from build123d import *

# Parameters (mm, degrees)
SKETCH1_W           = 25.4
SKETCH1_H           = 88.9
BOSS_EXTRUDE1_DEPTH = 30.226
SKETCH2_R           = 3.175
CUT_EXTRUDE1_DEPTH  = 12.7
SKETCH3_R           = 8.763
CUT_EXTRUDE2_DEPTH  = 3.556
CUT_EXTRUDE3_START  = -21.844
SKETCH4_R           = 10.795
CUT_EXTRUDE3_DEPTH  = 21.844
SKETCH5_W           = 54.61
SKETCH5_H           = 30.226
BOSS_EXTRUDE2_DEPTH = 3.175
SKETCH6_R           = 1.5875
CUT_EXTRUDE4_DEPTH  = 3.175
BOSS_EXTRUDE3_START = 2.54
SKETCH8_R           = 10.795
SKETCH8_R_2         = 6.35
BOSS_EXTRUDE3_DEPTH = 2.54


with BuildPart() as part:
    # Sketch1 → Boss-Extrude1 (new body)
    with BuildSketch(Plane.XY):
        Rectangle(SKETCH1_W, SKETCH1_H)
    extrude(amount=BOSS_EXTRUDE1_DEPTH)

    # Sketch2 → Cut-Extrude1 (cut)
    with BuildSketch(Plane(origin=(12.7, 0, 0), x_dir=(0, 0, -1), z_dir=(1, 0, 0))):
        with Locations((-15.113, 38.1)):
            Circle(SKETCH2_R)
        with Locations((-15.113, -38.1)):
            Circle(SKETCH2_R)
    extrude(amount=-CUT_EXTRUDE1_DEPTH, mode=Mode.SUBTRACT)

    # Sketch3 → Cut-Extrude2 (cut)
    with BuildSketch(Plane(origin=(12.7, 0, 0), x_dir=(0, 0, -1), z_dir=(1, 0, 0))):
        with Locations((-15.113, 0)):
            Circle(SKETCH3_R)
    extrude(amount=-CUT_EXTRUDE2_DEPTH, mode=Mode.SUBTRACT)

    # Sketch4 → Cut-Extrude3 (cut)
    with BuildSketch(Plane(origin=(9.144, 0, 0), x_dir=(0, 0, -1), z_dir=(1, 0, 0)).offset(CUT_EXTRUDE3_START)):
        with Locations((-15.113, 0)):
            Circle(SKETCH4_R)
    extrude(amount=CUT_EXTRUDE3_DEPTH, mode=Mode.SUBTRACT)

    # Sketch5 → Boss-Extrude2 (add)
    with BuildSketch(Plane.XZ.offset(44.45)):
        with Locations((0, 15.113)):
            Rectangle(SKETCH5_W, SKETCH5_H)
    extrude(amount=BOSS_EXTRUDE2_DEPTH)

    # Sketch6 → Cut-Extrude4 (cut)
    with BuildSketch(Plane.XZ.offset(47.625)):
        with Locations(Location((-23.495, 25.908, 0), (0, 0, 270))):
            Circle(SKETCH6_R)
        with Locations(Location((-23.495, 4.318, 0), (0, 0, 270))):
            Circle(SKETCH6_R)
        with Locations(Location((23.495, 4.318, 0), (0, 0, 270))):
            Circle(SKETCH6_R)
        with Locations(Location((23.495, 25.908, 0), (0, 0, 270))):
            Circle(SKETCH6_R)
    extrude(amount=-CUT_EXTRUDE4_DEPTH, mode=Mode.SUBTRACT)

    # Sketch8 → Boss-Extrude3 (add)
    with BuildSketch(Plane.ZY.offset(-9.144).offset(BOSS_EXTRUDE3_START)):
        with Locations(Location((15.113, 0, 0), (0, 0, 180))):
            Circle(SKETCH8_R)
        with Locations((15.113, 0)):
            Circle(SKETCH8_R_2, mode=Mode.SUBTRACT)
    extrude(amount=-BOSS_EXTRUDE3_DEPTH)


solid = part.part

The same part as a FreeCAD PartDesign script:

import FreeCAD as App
import Part
import Sketcher
from FreeCAD import Vector
Q = App.Units.Quantity


def add_polygon(sketch, points):
    """Adds a closed chain of lines whose ends are joined by coincident constraints."""
    first, n = sketch.GeometryCount, len(points)
    for a, b in zip(points, points[1:] + points[:1]):
        sketch.addGeometry(Part.LineSegment(App.Vector(*a, 0), App.Vector(*b, 0)), False)
    for i in range(n):
        sketch.addConstraint(Sketcher.Constraint("Coincident", first + i, 2, first + (i + 1) % n, 1))

doc = App.newDocument("Part")
body = doc.addObject("PartDesign::Body", "Body")

# Sketch on XY plane
sketch1 = doc.addObject("Sketcher::SketchObject", "Sketch")
body.addObject(sketch1)
sketch1.AttachmentSupport = (doc.XY_Plane, [""])
sketch1.MapMode = "FlatFace"
add_polygon(sketch1, [(-12.7, 44.45), (-12.7, -44.45), (12.7, -44.45), (12.7, 44.45)])  # lines 0-3
sketch1.addConstraint([
    Sketcher.Constraint("Vertical", 0),
    Sketcher.Constraint("Horizontal", 1),
    Sketcher.Constraint("Vertical", 2),
    Sketcher.Constraint("Horizontal", 3),
    Sketcher.Constraint("Symmetric", 0, 2, 2, 2, -1, 1),
    Sketcher.Constraint("DistanceX", 1, 1, 1, 2, Q("1 in")),
    Sketcher.Constraint("DistanceY", 0, 2, 0, 1, Q("3.5 in")),
])
pad1 = doc.addObject("PartDesign::Pad", "Pad")
body.addObject(pad1)
pad1.Profile = sketch1
pad1.Length = Q("1.19 in")

# Sketch on YZ plane
sketch2 = doc.addObject("Sketcher::SketchObject", "Sketch001")
body.addObject(sketch2)
sketch2.AttachmentSupport = (doc.YZ_Plane, [""])
sketch2.MapMode = "FlatFace"
sketch2.AttachmentOffset = App.Placement(Vector(0, 0, 0.5 * 25.4), App.Rotation())
sketch2.addGeometry([
    Part.Circle(Vector(38.1, 15.113, 0), Vector(0, 0, 1), 3.175),
    Part.Circle(Vector(-38.1, 15.113, 0), Vector(0, 0, 1), 3.175),
], False)
sketch2.addConstraint([
    Sketcher.Constraint("Equal", 0, 1),
    Sketcher.Constraint("Symmetric", 0, 3, 1, 3, -2),
    Sketcher.Constraint("Diameter", 0, Q("0.25 in")),
    Sketcher.Constraint("DistanceX", 1, 3, 0, 3, Q("3 in")),
    Sketcher.Constraint("DistanceY", -1, 1, 0, 3, Q("0.595 in")),
])
pocket1 = doc.addObject("PartDesign::Pocket", "Pocket")
body.addObject(pocket1)
pocket1.Profile = sketch2
pocket1.Length = Q("0.5 in")

# Sketch on YZ plane
sketch3 = doc.addObject("Sketcher::SketchObject", "Sketch002")
body.addObject(sketch3)
sketch3.AttachmentSupport = (doc.YZ_Plane, [""])
sketch3.MapMode = "FlatFace"
sketch3.AttachmentOffset = App.Placement(Vector(0, 0, 0.5 * 25.4), App.Rotation())
sketch3.addGeometry(Part.Circle(Vector(0, 15.113, 0), Vector(0, 0, 1), 8.763), False)
sketch3.addConstraint([
    Sketcher.Constraint("PointOnObject", 0, 3, -2),
    Sketcher.Constraint("Diameter", 0, Q("0.69 in")),
    Sketcher.Constraint("DistanceY", -1, 1, 0, 3, Q("0.595 in")),
])
pocket2 = doc.addObject("PartDesign::Pocket", "Pocket001")
body.addObject(pocket2)
pocket2.Profile = sketch3
pocket2.Length = Q("0.14 in")

# Sketch on YZ plane
sketch4 = doc.addObject("Sketcher::SketchObject", "Sketch003")
body.addObject(sketch4)
sketch4.AttachmentSupport = (doc.YZ_Plane, [""])
sketch4.MapMode = "FlatFace"
sketch4.AttachmentOffset = App.Placement(Vector(0, 0, -0.5 * 25.4), App.Rotation())
sketch4.addGeometry(Part.Circle(Vector(0, 15.113, 0), Vector(0, 0, 1), 10.795), False)
sketch4.addConstraint([
    Sketcher.Constraint("PointOnObject", 0, 3, -2),
    Sketcher.Constraint("Diameter", 0, Q("0.85 in")),
    Sketcher.Constraint("DistanceY", -1, 1, 0, 3, Q("0.595 in")),
])
pocket3 = doc.addObject("PartDesign::Pocket", "Pocket002")
body.addObject(pocket3)
pocket3.Profile = sketch4
pocket3.Length = Q("0.86 in")
pocket3.Reversed = True

# Sketch on XZ plane
sketch5 = doc.addObject("Sketcher::SketchObject", "Sketch004")
body.addObject(sketch5)
sketch5.AttachmentSupport = (doc.XZ_Plane, [""])
sketch5.MapMode = "FlatFace"
sketch5.AttachmentOffset = App.Placement(Vector(0, 0, 1.75 * 25.4), App.Rotation())
add_polygon(sketch5, [(-27.305, 30.226), (-27.305, 0), (27.305, 0), (27.305, 30.226)])  # lines 0-3
sketch5.addConstraint([
    Sketcher.Constraint("Vertical", 0),
    Sketcher.Constraint("Horizontal", 1),
    Sketcher.Constraint("Vertical", 2),
    Sketcher.Constraint("Horizontal", 3),
    Sketcher.Constraint("Symmetric", 0, 2, 1, 2, -1, 1),
    Sketcher.Constraint("DistanceX", 1, 1, 1, 2, Q("2.15 in")),
    Sketcher.Constraint("DistanceY", 0, 2, 0, 1, Q("1.19 in")),
])
pad2 = doc.addObject("PartDesign::Pad", "Pad001")
body.addObject(pad2)
pad2.Profile = sketch5
pad2.Length = Q("0.125 in")

# Sketch on XZ plane
sketch6 = doc.addObject("Sketcher::SketchObject", "Sketch005")
body.addObject(sketch6)
sketch6.AttachmentSupport = (doc.XZ_Plane, [""])
sketch6.MapMode = "FlatFace"
sketch6.AttachmentOffset = App.Placement(Vector(0, 0, 1.875 * 25.4), App.Rotation())
sketch6.addGeometry([
    Part.Circle(Vector(-23.495, 25.908, 0), Vector(0, 0, 1), 1.5875),
    Part.Circle(Vector(-23.495, 4.318, 0), Vector(0, 0, 1), 1.5875),
    Part.Circle(Vector(23.495, 4.318, 0), Vector(0, 0, 1), 1.5875),
    Part.Circle(Vector(23.495, 25.908, 0), Vector(0, 0, 1), 1.5875),
], False)
sketch6.addConstraint([
    Sketcher.Constraint("Equal", 0, 1),
    Sketcher.Constraint("Equal", 1, 2),
    Sketcher.Constraint("Equal", 2, 3),
    Sketcher.Constraint("Symmetric", 1, 3, 2, 3, -2),
    Sketcher.Constraint("Symmetric", 0, 3, 3, 3, -2),
    Sketcher.Constraint("Vertical", 0, 3, 1, 3),
    Sketcher.Constraint("Diameter", 0, Q("0.125 in")),
    Sketcher.Constraint("DistanceY", -1, 1, 0, 3, Q("1.02 in")),
    Sketcher.Constraint("DistanceY", -1, 1, 1, 3, Q("0.17 in")),
    Sketcher.Constraint("DistanceX", 1, 3, 2, 3, Q("1.85 in")),
])
pocket4 = doc.addObject("PartDesign::Pocket", "Pocket003")
body.addObject(pocket4)
pocket4.Profile = sketch6
pocket4.Length = Q("0.125 in")

# Sketch on YZ plane
sketch7 = doc.addObject("Sketcher::SketchObject", "Sketch006")
body.addObject(sketch7)
sketch7.AttachmentSupport = (doc.YZ_Plane, [""])
sketch7.MapMode = "FlatFace"
sketch7.AttachmentOffset = App.Placement(Vector(0, 0, 0.26 * 25.4), App.Rotation())
sketch7.addGeometry([
    Part.Circle(Vector(0, 15.113, 0), Vector(0, 0, 1), 10.795),
    Part.Circle(Vector(0, 15.113, 0), Vector(0, 0, 1), 6.35),
], False)
sketch7.addConstraint([
    Sketcher.Constraint("Coincident", 1, 3, 0, 3),
    Sketcher.Constraint("PointOnObject", 0, 3, -2),
    Sketcher.Constraint("Diameter", 1, Q("0.5 in")),
    Sketcher.Constraint("Diameter", 0, Q("0.85 in")),
    Sketcher.Constraint("DistanceY", -1, 1, 0, 3, Q("0.595 in")),
])
pad3 = doc.addObject("PartDesign::Pad", "Pad002")
body.addObject(pad3)
pad3.Profile = sketch7
pad3.Length = Q("0.1 in")

doc.recompute()
